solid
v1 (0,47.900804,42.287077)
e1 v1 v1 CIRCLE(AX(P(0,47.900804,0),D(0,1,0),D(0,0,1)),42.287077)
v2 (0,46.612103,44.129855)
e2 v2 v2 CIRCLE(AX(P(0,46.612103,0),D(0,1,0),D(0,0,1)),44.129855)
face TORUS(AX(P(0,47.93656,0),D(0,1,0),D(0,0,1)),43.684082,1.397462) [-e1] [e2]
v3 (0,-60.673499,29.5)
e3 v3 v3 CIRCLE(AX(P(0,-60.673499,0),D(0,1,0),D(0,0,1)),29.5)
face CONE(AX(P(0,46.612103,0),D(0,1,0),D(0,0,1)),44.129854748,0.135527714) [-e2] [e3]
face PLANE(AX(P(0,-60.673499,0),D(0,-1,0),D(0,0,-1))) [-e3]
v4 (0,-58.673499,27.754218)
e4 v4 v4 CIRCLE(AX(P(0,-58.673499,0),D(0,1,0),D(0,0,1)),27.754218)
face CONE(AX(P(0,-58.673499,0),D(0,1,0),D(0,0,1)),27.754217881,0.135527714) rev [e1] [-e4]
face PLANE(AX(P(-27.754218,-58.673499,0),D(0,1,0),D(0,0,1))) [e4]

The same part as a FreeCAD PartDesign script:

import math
import FreeCAD as App
import Part
import Sketcher

V = App.Vector
Q = App.Units.Quantity

doc = App.newDocument("Part")
body = doc.addObject("PartDesign::Body", "Body")

sketch1 = body.newObject("Sketcher::SketchObject", "Sketch")
sketch1.AttachmentSupport = (doc.getObject("XY_Plane"), [""])
sketch1.MapMode = "FlatFace"
sketch1.addGeometry(Part.LineSegment(V(-29.5, -60.7, 0), V(0, -60.7, 0)), False)
sketch1.addGeometry(Part.LineSegment(V(0, -60.7, 0), V(0, -58.7, 0)), False)
sketch1.addGeometry(Part.LineSegment(V(0, -58.7, 0), V(-27.8, -58.7, 0)), False)
sketch1.addGeometry(Part.LineSegment(V(-27.8, -58.7, 0), V(-42.3, 47.9, 0)), False)
sketch1.addGeometry(Part.ArcOfCircle(Part.Circle(V(-43.7, 47.9, 0), V(0, 0, 1), 1.4), math.radians(-1), math.radians(251)), False)
sketch1.addGeometry(Part.LineSegment(V(-44.1, 46.6, 0), V(-29.5, -60.7, 0)), False)
sketch1.addConstraint(Sketcher.Constraint("Coincident", 0, 2, 1, 1))
sketch1.addConstraint(Sketcher.Constraint("Coincident", 1, 2, 2, 1))
sketch1.addConstraint(Sketcher.Constraint("Coincident", 2, 2, 3, 1))
sketch1.addConstraint(Sketcher.Constraint("Coincident", 3, 2, 4, 1))
sketch1.addConstraint(Sketcher.Constraint("Coincident", 4, 2, 5, 1))
sketch1.addConstraint(Sketcher.Constraint("Coincident", 5, 2, 0, 1))
sketch1.addConstraint(Sketcher.Constraint("Horizontal", 0))
sketch1.addConstraint(Sketcher.Constraint("Vertical", 1))
sketch1.addConstraint(Sketcher.Constraint("Horizontal", 2))
sketch1.addConstraint(Sketcher.Constraint("PointOnObject", 0, 2, -2))
sketch1.addConstraint(Sketcher.Constraint("Parallel", 3, 5))
sketch1.addConstraint(Sketcher.Constraint("DistanceY", 1, 1, 1, 2, Q("2 mm")))
sketch1.addConstraint(Sketcher.Constraint("DistanceX", 0, 1, 0, 2, Q("29.5 mm")))
sketch1.addConstraint(Sketcher.Constraint("Radius", 4, Q("1.397462 mm")))
sketch1.addConstraint(Sketcher.Constraint("DistanceY", 0, 2, -1, 1, Q("60.673499 mm")))
sketch1.addConstraint(Sketcher.Constraint("DistanceY", 4, 2, 3, 2, Q("1.288701 mm")))
sketch1.addConstraint(Sketcher.Constraint("DistanceY", 2, 2, 4, 2, Q("105.285601 mm")))
sketch1.addConstraint(Sketcher.Constraint("DistanceX", 2, 2, 2, 1, Q("27.754218 mm")))
sketch1.addConstraint(Sketcher.Constraint("DistanceX", 4, 3, -1, 1, Q("43.684082 mm")))
revolution = body.newObject("PartDesign::Revolution", "Revolution")
revolution.Profile = sketch1
revolution.ReferenceAxis = (sketch1, ["V_Axis"])
revolution.Angle = 360

doc.recompute()
